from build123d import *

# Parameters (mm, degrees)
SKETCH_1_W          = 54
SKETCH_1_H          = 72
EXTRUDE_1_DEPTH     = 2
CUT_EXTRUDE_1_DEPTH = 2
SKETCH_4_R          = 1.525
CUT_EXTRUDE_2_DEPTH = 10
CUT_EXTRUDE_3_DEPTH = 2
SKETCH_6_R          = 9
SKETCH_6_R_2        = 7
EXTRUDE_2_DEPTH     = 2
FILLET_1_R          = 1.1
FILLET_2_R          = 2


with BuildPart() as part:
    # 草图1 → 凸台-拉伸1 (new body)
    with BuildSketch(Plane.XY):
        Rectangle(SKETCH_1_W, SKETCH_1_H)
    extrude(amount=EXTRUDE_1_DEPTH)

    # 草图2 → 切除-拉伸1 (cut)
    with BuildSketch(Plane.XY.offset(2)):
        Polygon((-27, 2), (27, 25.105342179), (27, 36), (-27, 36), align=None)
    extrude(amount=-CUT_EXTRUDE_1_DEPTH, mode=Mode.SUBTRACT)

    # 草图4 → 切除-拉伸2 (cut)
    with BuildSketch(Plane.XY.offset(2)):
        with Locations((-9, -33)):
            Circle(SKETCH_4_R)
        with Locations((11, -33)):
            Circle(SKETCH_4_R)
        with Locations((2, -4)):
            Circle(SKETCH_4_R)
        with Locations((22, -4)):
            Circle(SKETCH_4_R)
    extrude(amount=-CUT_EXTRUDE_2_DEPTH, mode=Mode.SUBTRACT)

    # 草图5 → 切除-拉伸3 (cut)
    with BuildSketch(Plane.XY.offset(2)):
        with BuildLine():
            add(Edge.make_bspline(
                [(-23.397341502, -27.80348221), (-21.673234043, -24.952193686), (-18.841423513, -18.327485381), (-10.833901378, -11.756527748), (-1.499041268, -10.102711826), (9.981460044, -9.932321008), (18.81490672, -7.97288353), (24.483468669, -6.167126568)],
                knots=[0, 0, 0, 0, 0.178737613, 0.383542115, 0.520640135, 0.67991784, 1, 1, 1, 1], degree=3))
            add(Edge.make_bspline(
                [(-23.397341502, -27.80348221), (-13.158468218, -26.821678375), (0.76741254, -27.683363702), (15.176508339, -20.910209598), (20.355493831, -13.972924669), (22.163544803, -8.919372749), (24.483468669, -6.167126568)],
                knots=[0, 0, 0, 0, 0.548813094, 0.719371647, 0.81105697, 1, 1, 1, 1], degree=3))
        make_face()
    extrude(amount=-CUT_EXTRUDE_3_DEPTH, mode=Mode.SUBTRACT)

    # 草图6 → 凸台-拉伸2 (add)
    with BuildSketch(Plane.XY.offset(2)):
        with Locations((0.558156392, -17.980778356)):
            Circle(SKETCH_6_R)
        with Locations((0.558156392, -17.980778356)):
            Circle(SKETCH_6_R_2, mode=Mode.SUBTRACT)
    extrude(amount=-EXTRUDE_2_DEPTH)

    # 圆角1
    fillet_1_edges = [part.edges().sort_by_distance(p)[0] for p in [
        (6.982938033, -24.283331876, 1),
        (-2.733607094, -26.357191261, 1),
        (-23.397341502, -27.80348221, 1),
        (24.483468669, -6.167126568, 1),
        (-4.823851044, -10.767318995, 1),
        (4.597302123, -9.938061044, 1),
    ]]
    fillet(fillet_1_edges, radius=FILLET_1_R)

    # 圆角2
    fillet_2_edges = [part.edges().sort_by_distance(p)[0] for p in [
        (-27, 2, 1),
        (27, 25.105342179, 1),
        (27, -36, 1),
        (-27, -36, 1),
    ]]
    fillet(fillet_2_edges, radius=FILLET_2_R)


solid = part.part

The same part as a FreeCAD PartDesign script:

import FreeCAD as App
import Part
import Sketcher
Q = App.Units.Quantity


def edges_at(feature, points):
    """Names of the edges that pass closest to the given points."""
    edges = feature.Shape.Edges
    near = lambda p: min(range(len(edges)), key=lambda i: edges[i].distToShape(Part.Vertex(*p))[0])
    return sorted({f"Edge{near(p) + 1}" for p in points})


def add_polygon(sketch, points):
    """Adds a closed chain of lines whose ends are joined by coincident constraints."""
    first, n = sketch.GeometryCount, len(points)
    for a, b in zip(points, points[1:] + points[:1]):
        sketch.addGeometry(Part.LineSegment(App.Vector(*a, 0), App.Vector(*b, 0)), False)
    for i in range(n):
        sketch.addConstraint(Sketcher.Constraint("Coincident", first + i, 2, first + (i + 1) % n, 1))

doc = App.newDocument("Part")
body = doc.addObject("PartDesign::Body", "Body")

sketch1 = body.newObject("Sketcher::SketchObject", "Sketch")
sketch1.AttachmentSupport = (doc.getObject("XY_Plane"), [""])
sketch1.MapMode = "FlatFace"
add_polygon(sketch1, [(-27, 36), (-27, -36), (27, -36), (27, 36)])
sketch1.addConstraint([
    Sketcher.Constraint("Vertical", 0),
    Sketcher.Constraint("Horizontal", 1),
    Sketcher.Constraint("Vertical", 2),
    Sketcher.Constraint("Horizontal", 3),
    Sketcher.Constraint("Symmetric", 0, 2, 2, 2, -1, 1),
    Sketcher.Constraint("DistanceX", 1, 1, 1, 2, Q("54 mm")),
    Sketcher.Constraint("DistanceY", 0, 2, 0, 1, Q("72 mm")),
])
pad1 = body.newObject("PartDesign::Pad", "Pad")
pad1.Profile = sketch1
pad1.Length = 2

sketch2 = body.newObject("Sketcher::SketchObject", "Sketch001")
sketch2.AttachmentSupport = (doc.getObject("XY_Plane"), [""])
sketch2.MapMode = "FlatFace"
sketch2.AttachmentOffset = App.Placement(App.Vector(0, 0, 2), App.Rotation())
add_polygon(sketch2, [(-27, 2), (27, 25), (27, 36), (-27, 36)])
sketch2.addConstraint([
    Sketcher.Constraint("Vertical", 1),
    Sketcher.Constraint("Horizontal", 2),
    Sketcher.Constraint("Vertical", 3),
    Sketcher.Constraint("DistanceX", 2, 2, 2, 1, Q("54 mm")),
    Sketcher.Constraint("DistanceY", 3, 2, 3, 1, Q("34 mm")),
    Sketcher.Constraint("DistanceX", -1, 1, 0, 2, Q("27 mm")),
    Sketcher.Constraint("DistanceY", -1, 1, 1, 2, Q("36 mm")),
    Sketcher.Constraint("Distance", 0, Q("58.735482 mm")),
])
pocket1 = body.newObject("PartDesign::Pocket", "Pocket")
pocket1.Profile = sketch2
pocket1.Length = 2

sketch3 = body.newObject("Sketcher::SketchObject", "Sketch002")
sketch3.AttachmentSupport = (doc.getObject("XY_Plane"), [""])
sketch3.MapMode = "FlatFace"
sketch3.AttachmentOffset = App.Placement(App.Vector(0, 0, 2), App.Rotation())
sketch3.addGeometry([
    Part.Circle(App.Vector(-9, -33, 0), App.Vector(0, 0, 1), 1.5),
    Part.Circle(App.Vector(11, -33, 0), App.Vector(0, 0, 1), 1.5),
    Part.Circle(App.Vector(2, -4, 0), App.Vector(0, 0, 1), 1.5),
    Part.Circle(App.Vector(22, -4, 0), App.Vector(0, 0, 1), 1.5),
], False)
sketch3.addConstraint([
    Sketcher.Constraint("Equal", 0, 1),
    Sketcher.Constraint("Equal", 1, 2),
    Sketcher.Constraint("Equal", 2, 3),
    Sketcher.Constraint("Horizontal", 0, 3, 1, 3),
    Sketcher.Constraint("Horizontal", 2, 3, 3, 3),
    Sketcher.Constraint("Diameter", 0, Q("3.05 mm")),
    Sketcher.Constraint("DistanceX", 0, 3, -1, 1, Q("9 mm")),
    Sketcher.Constraint("DistanceY", 0, 3, -1, 1, Q("33 mm")),
    Sketcher.Constraint("DistanceX", -1, 1, 1, 3, Q("11 mm")),
    Sketcher.Constraint("DistanceX", -1, 1, 2, 3, Q("2 mm")),
    Sketcher.Constraint("DistanceY", 2, 3, -1, 1, Q("4 mm")),
    Sketcher.Constraint("DistanceX", -1, 1, 3, 3, Q("22 mm")),
])
pocket2 = body.newObject("PartDesign::Pocket", "Pocket001")
pocket2.Profile = sketch3
pocket2.Length = 10

sketch4 = body.newObject("Sketcher::SketchObject", "Sketch003")
sketch4.AttachmentSupport = (doc.getObject("XY_Plane"), [""])
sketch4.MapMode = "FlatFace"
sketch4.AttachmentOffset = App.Placement(App.Vector(0, 0, 2), App.Rotation())
sketch4.addGeometry([
    Part.BSplineCurve([App.Vector(-23.397342, -27.803482, 0), App.Vector(-21.673234, -24.952194, 0), App.Vector(-18.841424, -18.327485, 0), App.Vector(-10.833901, -11.756528, 0), App.Vector(-1.499041, -10.102712, 0), App.Vector(9.98146, -9.932321, 0), App.Vector(18.814907, -7.972884, 0), App.Vector(24.483469, -6.167127, 0)], [4, 1, 1, 1, 1, 4], [0, 0.178737613, 0.383542115, 0.520640135, 0.67991784, 1], False, 3, [1, 1, 1, 1, 1, 1, 1, 1], False),
    Part.BSplineCurve([App.Vector(-23.397342, -27.803482, 0), App.Vector(-13.158468, -26.821678, 0), App.Vector(0.767413, -27.683364, 0), App.Vector(15.176508, -20.91021, 0), App.Vector(20.355494, -13.972925, 0), App.Vector(22.163545, -8.919373, 0), App.Vector(24.483469, -6.167127, 0)], [4, 1, 1, 1, 4], [0, 0.548813094, 0.719371647, 0.81105697, 1], False, 3, [1, 1, 1, 1, 1, 1, 1], False),
], False)
sketch4.addConstraint([
    Sketcher.Constraint("Block", 0),
    Sketcher.Constraint("Block", 1),
])
pocket3 = body.newObject("PartDesign::Pocket", "Pocket002")
pocket3.Profile = sketch4
pocket3.Length = 2

sketch5 = body.newObject("Sketcher::SketchObject", "Sketch004")
sketch5.AttachmentSupport = (doc.getObject("XY_Plane"), [""])
sketch5.MapMode = "FlatFace"
sketch5.AttachmentOffset = App.Placement(App.Vector(0, 0, 2), App.Rotation())
sketch5.addGeometry([
    Part.Circle(App.Vector(1, -18, 0), App.Vector(0, 0, 1), 9),
    Part.Circle(App.Vector(1, -18, 0), App.Vector(0, 0, 1), 7),
], False)
sketch5.addConstraint([
    Sketcher.Constraint("Coincident", 1, 3, 0, 3),
    Sketcher.Constraint("Diameter", 0, Q("18 mm")),
    Sketcher.Constraint("Diameter", 1, Q("14 mm")),
    Sketcher.Constraint("DistanceY", 0, 3, -1, 1, Q("17.980778 mm")),
    Sketcher.Constraint("DistanceX", -1, 1, 0, 3, Q("0.558156 mm")),
])
pad2 = body.newObject("PartDesign::Pad", "Pad001")
pad2.Profile = sketch5
pad2.Length = 2
pad2.Reversed = True
doc.recompute()

fillet = body.newObject("PartDesign::Fillet", "Fillet")
fillet.Base = (pad2, edges_at(pad2, [
    (6.983, -24.283, 1),
    (-2.734, -26.357, 1),
    (-23.397, -27.803, 1),
    (24.483, -6.167, 1),
    (-4.824, -10.767, 1),
    (4.597, -9.938, 1),
]))
fillet.Radius = 1.1
doc.recompute()

fillet2 = body.newObject("PartDesign::Fillet", "Fillet001")
fillet2.Base = (fillet, edges_at(fillet, [
    (-27, 2, 1),
    (27, 25.105, 1),
    (27, -36, 1),
    (-27, -36, 1),
]))
fillet2.Radius = 2

doc.recompute()
